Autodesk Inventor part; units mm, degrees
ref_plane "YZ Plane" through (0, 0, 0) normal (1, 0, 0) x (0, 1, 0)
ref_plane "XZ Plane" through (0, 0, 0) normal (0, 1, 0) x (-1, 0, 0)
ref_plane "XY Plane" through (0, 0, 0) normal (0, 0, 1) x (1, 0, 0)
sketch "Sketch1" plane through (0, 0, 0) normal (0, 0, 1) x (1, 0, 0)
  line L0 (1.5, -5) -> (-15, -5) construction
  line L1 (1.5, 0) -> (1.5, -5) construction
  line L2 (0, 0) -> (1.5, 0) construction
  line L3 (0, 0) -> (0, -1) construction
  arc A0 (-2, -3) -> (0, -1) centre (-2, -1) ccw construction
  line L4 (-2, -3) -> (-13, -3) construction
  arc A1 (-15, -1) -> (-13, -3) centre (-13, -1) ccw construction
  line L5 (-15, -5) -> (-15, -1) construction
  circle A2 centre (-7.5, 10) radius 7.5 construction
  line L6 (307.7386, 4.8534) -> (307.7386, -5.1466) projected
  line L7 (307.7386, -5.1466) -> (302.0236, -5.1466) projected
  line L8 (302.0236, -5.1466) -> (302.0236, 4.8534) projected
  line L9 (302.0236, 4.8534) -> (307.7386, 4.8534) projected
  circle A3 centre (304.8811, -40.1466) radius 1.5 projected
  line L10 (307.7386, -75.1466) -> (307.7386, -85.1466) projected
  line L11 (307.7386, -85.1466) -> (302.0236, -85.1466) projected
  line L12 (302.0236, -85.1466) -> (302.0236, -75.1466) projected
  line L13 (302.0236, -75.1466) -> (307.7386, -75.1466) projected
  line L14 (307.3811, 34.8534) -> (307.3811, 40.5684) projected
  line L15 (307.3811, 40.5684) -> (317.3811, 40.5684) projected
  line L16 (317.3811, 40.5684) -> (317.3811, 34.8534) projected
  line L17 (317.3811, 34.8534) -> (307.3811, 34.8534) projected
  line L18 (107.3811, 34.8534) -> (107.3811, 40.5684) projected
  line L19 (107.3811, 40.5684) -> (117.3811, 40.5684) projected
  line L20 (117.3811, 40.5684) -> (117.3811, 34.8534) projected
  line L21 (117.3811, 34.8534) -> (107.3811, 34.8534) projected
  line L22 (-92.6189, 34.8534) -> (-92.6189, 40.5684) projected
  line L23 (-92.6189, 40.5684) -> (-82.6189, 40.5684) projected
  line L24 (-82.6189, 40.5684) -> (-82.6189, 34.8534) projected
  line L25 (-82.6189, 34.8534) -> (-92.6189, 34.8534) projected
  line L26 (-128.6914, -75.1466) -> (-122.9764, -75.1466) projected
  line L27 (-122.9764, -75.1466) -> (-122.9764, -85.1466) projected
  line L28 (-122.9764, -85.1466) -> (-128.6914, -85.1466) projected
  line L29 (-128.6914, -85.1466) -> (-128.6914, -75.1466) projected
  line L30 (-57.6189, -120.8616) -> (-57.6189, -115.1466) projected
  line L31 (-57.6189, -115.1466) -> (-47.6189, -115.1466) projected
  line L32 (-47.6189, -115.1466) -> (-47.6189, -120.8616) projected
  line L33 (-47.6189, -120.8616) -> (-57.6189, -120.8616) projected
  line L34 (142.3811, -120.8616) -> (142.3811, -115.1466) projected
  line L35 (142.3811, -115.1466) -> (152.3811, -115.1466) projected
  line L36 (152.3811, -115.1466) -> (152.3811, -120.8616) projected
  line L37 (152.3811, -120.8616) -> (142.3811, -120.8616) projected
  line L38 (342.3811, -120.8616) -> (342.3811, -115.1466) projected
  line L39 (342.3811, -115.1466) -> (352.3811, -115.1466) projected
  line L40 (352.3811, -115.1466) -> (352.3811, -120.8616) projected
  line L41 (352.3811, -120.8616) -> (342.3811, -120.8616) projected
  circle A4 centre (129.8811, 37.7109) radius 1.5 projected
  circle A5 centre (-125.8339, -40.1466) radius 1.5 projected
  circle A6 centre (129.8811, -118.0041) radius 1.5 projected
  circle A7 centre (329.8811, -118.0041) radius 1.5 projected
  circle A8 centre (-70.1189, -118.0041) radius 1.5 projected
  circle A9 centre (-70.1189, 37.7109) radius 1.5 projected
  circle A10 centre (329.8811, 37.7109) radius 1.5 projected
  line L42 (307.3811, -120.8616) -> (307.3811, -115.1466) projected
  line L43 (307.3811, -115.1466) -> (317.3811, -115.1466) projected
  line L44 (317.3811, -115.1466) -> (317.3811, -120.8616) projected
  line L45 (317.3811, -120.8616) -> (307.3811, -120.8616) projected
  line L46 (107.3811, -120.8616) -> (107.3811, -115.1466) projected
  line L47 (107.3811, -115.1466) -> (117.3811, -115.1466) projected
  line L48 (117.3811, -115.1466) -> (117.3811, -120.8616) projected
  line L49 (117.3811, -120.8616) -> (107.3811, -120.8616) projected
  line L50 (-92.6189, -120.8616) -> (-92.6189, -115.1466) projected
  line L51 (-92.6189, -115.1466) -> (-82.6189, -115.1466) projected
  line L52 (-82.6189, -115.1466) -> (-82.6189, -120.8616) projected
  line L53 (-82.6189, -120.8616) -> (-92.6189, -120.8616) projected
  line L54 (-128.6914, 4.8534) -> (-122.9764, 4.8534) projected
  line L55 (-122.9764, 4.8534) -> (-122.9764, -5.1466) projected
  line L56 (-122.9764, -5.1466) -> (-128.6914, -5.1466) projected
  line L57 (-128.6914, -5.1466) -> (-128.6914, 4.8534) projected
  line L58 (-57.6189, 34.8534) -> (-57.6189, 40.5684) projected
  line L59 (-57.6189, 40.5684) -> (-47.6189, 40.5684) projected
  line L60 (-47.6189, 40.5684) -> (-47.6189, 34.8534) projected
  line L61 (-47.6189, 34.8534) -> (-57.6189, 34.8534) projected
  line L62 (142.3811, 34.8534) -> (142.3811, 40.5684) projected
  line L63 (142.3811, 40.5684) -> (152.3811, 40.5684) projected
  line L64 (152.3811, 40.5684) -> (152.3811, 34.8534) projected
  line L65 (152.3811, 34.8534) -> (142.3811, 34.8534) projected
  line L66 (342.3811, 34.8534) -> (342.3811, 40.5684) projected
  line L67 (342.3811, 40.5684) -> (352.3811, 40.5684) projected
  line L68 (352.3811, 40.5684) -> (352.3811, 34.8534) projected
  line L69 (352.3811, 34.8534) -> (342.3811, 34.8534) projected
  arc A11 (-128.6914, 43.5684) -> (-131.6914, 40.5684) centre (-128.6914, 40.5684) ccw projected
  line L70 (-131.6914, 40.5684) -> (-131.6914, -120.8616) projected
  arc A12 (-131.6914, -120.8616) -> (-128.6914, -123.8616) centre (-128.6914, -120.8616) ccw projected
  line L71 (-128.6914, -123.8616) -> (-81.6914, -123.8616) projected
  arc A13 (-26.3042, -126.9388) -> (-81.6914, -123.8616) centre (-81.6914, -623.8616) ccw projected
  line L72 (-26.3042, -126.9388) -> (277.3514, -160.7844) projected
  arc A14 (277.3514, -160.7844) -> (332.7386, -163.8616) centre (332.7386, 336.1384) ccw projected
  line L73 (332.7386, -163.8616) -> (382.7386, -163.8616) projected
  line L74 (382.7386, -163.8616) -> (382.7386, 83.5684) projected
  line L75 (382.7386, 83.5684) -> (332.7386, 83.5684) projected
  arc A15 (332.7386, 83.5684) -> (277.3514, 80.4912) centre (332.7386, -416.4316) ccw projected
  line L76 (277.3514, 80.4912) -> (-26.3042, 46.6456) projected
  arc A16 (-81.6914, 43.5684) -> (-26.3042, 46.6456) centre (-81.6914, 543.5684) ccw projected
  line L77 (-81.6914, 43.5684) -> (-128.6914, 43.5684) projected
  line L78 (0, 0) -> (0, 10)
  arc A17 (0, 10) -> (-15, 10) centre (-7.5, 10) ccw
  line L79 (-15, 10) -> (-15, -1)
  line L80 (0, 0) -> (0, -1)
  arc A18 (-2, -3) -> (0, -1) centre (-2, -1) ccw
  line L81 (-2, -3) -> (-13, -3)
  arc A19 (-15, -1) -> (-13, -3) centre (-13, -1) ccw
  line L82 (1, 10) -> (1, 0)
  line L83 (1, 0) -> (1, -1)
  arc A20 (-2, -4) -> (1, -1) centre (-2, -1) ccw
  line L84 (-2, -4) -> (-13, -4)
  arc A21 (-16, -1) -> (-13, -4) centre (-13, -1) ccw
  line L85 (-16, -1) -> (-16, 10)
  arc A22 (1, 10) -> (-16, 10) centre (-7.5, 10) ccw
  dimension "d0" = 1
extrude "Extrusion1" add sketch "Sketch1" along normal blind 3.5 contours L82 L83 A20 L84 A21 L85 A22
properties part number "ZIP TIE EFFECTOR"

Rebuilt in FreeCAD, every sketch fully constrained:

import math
import FreeCAD as App
import Part
import Sketcher

V = App.Vector
Q = App.Units.Quantity

doc = App.newDocument("Part")
params = doc.addObject("Spreadsheet::Sheet", "Params")
for row, (alias, value) in enumerate([
    ("sketch1_radius", "3 mm"),
    ("sketch1_radius2", "8.5 mm"),
    ("pad1_length", "3.5 mm"),
], start=1):
    params.set(f"A{row}", alias)
    params.set(f"B{row}", "=" + value)
    params.setAlias(f"B{row}", alias)

body = doc.addObject("PartDesign::Body", "Body")

sketch1 = body.newObject("Sketcher::SketchObject", "Sketch")
sketch1.AttachmentSupport = (doc.getObject("XY_Plane"), [""])
sketch1.MapMode = "FlatFace"
sketch1.addGeometry(Part.LineSegment(V(1, -1, 0), V(1, 10, 0)), False)
sketch1.addGeometry(Part.ArcOfCircle(Part.Circle(V(-7.5, 10, 0), V(0, 0, 1), 8.5), math.radians(0), math.radians(180)), False)
sketch1.addGeometry(Part.LineSegment(V(-16, 10, 0), V(-16, -1, 0)), False)
sketch1.addGeometry(Part.ArcOfCircle(Part.Circle(V(-13, -1, 0), V(0, 0, 1), 3), math.radians(180), math.radians(270)), False)
sketch1.addGeometry(Part.LineSegment(V(-13, -4, 0), V(-2, -4, 0)), False)
sketch1.addGeometry(Part.ArcOfCircle(Part.Circle(V(-2, -1, 0), V(0, 0, 1), 3), math.radians(-90), math.radians(0)), False)
sketch1.addGeometry(Part.LineSegment(V(0, 10, 0), V(0, -1, 0)), False)
sketch1.addGeometry(Part.ArcOfCircle(Part.Circle(V(-2, -1, 0), V(0, 0, 1), 2), math.radians(-90), math.radians(0)), False)
sketch1.addGeometry(Part.LineSegment(V(-2, -3, 0), V(-13, -3, 0)), False)
sketch1.addGeometry(Part.ArcOfCircle(Part.Circle(V(-13, -1, 0), V(0, 0, 1), 2), math.radians(180), math.radians(270)), False)
sketch1.addGeometry(Part.LineSegment(V(-15, -1, 0), V(-15, 10, 0)), False)
sketch1.addGeometry(Part.ArcOfCircle(Part.Circle(V(-7.5, 10, 0), V(0, 0, 1), 7.5), math.radians(0), math.radians(180)), False)
sketch1.addConstraint(Sketcher.Constraint("Tangent", 0, 2, 1, 1))
sketch1.addConstraint(Sketcher.Constraint("Tangent", 1, 2, 2, 1))
sketch1.addConstraint(Sketcher.Constraint("Tangent", 2, 2, 3, 1))
sketch1.addConstraint(Sketcher.Constraint("Tangent", 3, 2, 4, 1))
sketch1.addConstraint(Sketcher.Constraint("Tangent", 4, 2, 5, 1))
sketch1.addConstraint(Sketcher.Constraint("Tangent", 5, 2, 0, 1))
sketch1.addConstraint(Sketcher.Constraint("Tangent", 6, 2, 7, 2))
sketch1.addConstraint(Sketcher.Constraint("Tangent", 7, 1, 8, 1))
sketch1.addConstraint(Sketcher.Constraint("Tangent", 8, 2, 9, 2))
sketch1.addConstraint(Sketcher.Constraint("Tangent", 9, 1, 10, 1))
sketch1.addConstraint(Sketcher.Constraint("Tangent", 10, 2, 11, 2))
sketch1.addConstraint(Sketcher.Constraint("Tangent", 11, 1, 6, 1))
sketch1.addConstraint(Sketcher.Constraint("Vertical", 0))
sketch1.addConstraint(Sketcher.Constraint("Vertical", 2))
sketch1.addConstraint(Sketcher.Constraint("Horizontal", 4))
sketch1.addConstraint(Sketcher.Constraint("Vertical", 6))
sketch1.addConstraint(Sketcher.Constraint("Horizontal", 8))
sketch1.addConstraint(Sketcher.Constraint("Vertical", 10))
sketch1.addConstraint(Sketcher.Constraint("Coincident", 7, 3, 5, 3))
sketch1.addConstraint(Sketcher.Constraint("Coincident", 9, 3, 3, 3))
sketch1.addConstraint(Sketcher.Constraint("Equal", 3, 5))
sketch1.addConstraint(Sketcher.Constraint("PointOnObject", 6, 2, -2))
sketch1.addConstraint(Sketcher.Constraint("Horizontal", 11, 3, 0, 2))
sketch1.addConstraint(Sketcher.Constraint("Equal", 8, 0))
sketch1.addConstraint(Sketcher.Constraint("DistanceY", 3, 3, -1, 1, Q("1 mm")))
sketch1.addConstraint(Sketcher.Constraint("DistanceX", -1, 1, 0, 2, Q("1 mm")))
sketch1.addConstraint(Sketcher.Constraint("Radius", 3, Q("3 mm")))
sketch1.addConstraint(Sketcher.Constraint("Radius", 1, Q("8.5 mm")))
sketch1.setExpression("Constraints[26]", "Params.sketch1_radius")
sketch1.setExpression("Constraints[27]", "Params.sketch1_radius2")
pad1 = body.newObject("PartDesign::Pad", "Pad")
pad1.Profile = sketch1
pad1.setExpression("Length", "Params.pad1_length")

doc.recompute()
